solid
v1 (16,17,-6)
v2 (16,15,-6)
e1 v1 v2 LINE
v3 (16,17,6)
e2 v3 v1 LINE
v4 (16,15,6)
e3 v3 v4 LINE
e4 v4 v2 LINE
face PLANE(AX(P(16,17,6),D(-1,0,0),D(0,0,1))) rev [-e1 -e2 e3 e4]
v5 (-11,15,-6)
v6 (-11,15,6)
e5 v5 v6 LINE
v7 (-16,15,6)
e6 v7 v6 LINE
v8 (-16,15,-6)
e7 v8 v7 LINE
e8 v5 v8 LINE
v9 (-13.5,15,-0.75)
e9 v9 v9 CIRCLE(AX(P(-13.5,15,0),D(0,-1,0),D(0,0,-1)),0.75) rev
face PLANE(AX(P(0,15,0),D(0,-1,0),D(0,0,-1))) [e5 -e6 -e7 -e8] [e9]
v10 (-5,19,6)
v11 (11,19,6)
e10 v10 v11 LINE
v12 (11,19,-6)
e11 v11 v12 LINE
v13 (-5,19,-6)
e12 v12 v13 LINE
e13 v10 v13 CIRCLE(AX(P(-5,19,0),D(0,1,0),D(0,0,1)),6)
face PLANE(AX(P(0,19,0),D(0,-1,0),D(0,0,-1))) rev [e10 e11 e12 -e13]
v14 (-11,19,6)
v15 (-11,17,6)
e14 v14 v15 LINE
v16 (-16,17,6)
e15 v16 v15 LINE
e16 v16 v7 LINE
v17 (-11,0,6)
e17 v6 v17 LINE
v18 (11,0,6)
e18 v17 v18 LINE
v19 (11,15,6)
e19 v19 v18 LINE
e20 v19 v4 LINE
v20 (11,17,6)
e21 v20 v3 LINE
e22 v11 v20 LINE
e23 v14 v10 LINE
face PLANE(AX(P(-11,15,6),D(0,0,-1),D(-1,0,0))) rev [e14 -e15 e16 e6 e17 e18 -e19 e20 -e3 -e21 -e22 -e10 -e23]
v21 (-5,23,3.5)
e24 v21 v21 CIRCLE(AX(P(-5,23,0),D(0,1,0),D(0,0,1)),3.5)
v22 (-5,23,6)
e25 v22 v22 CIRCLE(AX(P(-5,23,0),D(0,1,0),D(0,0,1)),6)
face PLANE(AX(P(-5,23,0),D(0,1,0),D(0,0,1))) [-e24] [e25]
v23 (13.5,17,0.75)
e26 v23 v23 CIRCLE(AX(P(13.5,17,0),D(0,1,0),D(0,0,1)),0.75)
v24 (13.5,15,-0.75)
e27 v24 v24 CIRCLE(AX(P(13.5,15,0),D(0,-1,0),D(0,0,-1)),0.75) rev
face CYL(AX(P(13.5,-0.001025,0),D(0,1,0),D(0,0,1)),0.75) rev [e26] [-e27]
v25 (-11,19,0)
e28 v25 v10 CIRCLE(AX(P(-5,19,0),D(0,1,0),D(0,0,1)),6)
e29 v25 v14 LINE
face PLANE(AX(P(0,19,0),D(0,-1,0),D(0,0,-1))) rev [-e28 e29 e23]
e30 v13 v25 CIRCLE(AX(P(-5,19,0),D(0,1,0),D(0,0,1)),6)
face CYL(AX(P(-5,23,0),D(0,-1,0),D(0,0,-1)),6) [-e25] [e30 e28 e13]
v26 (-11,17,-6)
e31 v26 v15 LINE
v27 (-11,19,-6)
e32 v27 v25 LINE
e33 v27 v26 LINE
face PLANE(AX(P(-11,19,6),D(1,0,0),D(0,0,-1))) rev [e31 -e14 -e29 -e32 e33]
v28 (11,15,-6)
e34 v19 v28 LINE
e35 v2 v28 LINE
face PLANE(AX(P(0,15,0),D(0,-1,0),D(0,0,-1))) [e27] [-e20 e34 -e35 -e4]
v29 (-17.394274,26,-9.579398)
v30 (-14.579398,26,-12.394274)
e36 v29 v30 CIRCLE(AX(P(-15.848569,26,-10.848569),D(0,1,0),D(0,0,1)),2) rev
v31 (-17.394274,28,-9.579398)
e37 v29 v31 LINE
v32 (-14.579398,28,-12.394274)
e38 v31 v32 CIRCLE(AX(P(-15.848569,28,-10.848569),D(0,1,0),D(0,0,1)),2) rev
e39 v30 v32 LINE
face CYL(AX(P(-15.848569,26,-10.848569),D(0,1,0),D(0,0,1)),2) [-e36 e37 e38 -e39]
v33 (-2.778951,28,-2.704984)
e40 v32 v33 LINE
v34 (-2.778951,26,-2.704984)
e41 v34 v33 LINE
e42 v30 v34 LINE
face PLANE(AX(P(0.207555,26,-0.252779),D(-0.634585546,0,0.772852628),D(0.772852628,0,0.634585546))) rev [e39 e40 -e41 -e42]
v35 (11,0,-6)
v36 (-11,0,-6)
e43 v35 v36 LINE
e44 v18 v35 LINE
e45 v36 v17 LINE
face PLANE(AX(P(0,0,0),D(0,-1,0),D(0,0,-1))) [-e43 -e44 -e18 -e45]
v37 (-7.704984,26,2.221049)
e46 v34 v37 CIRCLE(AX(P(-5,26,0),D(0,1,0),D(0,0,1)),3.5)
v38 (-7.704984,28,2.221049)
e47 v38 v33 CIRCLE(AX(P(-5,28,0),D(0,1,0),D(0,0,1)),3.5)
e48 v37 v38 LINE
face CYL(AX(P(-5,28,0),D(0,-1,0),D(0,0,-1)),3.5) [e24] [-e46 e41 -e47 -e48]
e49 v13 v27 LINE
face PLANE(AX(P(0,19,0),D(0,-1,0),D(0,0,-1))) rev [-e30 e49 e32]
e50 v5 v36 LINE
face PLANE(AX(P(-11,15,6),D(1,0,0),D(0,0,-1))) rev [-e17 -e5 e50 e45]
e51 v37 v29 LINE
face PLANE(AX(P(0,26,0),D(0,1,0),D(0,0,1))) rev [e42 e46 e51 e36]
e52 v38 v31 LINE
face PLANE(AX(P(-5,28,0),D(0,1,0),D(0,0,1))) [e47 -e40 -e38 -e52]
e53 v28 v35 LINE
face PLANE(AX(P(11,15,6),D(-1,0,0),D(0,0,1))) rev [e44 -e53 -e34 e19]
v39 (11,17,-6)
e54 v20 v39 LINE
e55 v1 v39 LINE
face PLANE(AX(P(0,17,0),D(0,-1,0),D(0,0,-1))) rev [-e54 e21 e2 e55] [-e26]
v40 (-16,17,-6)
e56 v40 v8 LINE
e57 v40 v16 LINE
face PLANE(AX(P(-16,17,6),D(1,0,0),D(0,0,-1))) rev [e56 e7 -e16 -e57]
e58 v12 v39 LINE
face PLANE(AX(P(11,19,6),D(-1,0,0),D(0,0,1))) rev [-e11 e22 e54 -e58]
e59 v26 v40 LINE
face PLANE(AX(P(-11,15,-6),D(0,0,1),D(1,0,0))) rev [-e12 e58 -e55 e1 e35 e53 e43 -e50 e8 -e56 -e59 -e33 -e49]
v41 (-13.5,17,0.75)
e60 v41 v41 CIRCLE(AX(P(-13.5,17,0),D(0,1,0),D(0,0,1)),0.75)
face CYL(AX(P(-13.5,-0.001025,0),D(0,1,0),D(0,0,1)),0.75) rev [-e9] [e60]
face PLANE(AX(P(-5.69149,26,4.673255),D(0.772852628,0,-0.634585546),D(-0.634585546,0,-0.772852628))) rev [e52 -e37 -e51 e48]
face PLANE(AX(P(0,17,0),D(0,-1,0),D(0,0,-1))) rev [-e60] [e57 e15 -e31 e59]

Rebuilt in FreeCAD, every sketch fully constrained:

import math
import FreeCAD as App
import Part
import Sketcher
Q = App.Units.Quantity

doc = App.newDocument("Part")
body = doc.addObject("PartDesign::Body", "Body")

sketch1 = doc.addObject("Sketcher::SketchObject", "Sketch")
body.addObject(sketch1)
sketch1.AttachmentSupport = (doc.XZ_Plane, [""])
sketch1.MapMode = "FlatFace"
sketch1.addGeometry([
    Part.LineSegment(App.Vector(-11, -6, 0), App.Vector(-11, 6, 0)),
    Part.LineSegment(App.Vector(-11, 6, 0), App.Vector(11, 6, 0)),
    Part.LineSegment(App.Vector(11, 6, 0), App.Vector(11, -6, 0)),
    Part.LineSegment(App.Vector(11, -6, 0), App.Vector(-11, -6, 0)),
], False)
sketch1.addConstraint([
    Sketcher.Constraint("Coincident", 0, 2, 1, 1),
    Sketcher.Constraint("Coincident", 1, 2, 2, 1),
    Sketcher.Constraint("Coincident", 2, 2, 3, 1),
    Sketcher.Constraint("Coincident", 3, 2, 0, 1),
    Sketcher.Constraint("Vertical", 0),
    Sketcher.Constraint("Horizontal", 1),
    Sketcher.Constraint("Vertical", 2),
    Sketcher.Constraint("Horizontal", 3),
    Sketcher.Constraint("Symmetric", 0, 2, 2, 2, -1, 1),
    Sketcher.Constraint("DistanceX", 1, 1, 1, 2, Q("22 mm")),
    Sketcher.Constraint("DistanceY", 0, 1, 0, 2, Q("12 mm")),
])
pad1 = doc.addObject("PartDesign::Pad", "Pad")
body.addObject(pad1)
pad1.Profile = sketch1
pad1.Length = 15
pad1.Reversed = True

sketch2 = doc.addObject("Sketcher::SketchObject", "Sketch001")
body.addObject(sketch2)
sketch2.AttachmentSupport = (doc.XZ_Plane, [""])
sketch2.MapMode = "FlatFace"
sketch2.AttachmentOffset = App.Placement(App.Vector(0, 0, -15), App.Rotation())
sketch2.addGeometry([
    Part.LineSegment(App.Vector(-16, -6, 0), App.Vector(-16, 6, 0)),
    Part.LineSegment(App.Vector(-16, 6, 0), App.Vector(16, 6, 0)),
    Part.LineSegment(App.Vector(16, 6, 0), App.Vector(16, -6, 0)),
    Part.LineSegment(App.Vector(16, -6, 0), App.Vector(-16, -6, 0)),
], False)
sketch2.addConstraint([
    Sketcher.Constraint("Coincident", 0, 2, 1, 1),
    Sketcher.Constraint("Coincident", 1, 2, 2, 1),
    Sketcher.Constraint("Coincident", 2, 2, 3, 1),
    Sketcher.Constraint("Coincident", 3, 2, 0, 1),
    Sketcher.Constraint("Vertical", 0),
    Sketcher.Constraint("Horizontal", 1),
    Sketcher.Constraint("Vertical", 2),
    Sketcher.Constraint("Horizontal", 3),
    Sketcher.Constraint("Symmetric", 0, 2, 2, 2, -1, 1),
    Sketcher.Constraint("DistanceX", 1, 1, 1, 2, Q("32 mm")),
    Sketcher.Constraint("DistanceY", 0, 1, 0, 2, Q("12 mm")),
])
pad2 = doc.addObject("PartDesign::Pad", "Pad001")
body.addObject(pad2)
pad2.Profile = sketch2
pad2.Length = 2
pad2.Reversed = True

sketch3 = doc.addObject("Sketcher::SketchObject", "Sketch002")
body.addObject(sketch3)
sketch3.AttachmentSupport = (doc.XZ_Plane, [""])
sketch3.MapMode = "FlatFace"
sketch3.AttachmentOffset = App.Placement(App.Vector(0, 0, -17), App.Rotation())
sketch3.addGeometry([
    Part.LineSegment(App.Vector(-11, -6, 0), App.Vector(-11, 6, 0)),
    Part.LineSegment(App.Vector(-11, 6, 0), App.Vector(11, 6, 0)),
    Part.LineSegment(App.Vector(11, 6, 0), App.Vector(11, -6, 0)),
    Part.LineSegment(App.Vector(11, -6, 0), App.Vector(-11, -6, 0)),
], False)
sketch3.addConstraint([
    Sketcher.Constraint("Coincident", 0, 2, 1, 1),
    Sketcher.Constraint("Coincident", 1, 2, 2, 1),
    Sketcher.Constraint("Coincident", 2, 2, 3, 1),
    Sketcher.Constraint("Coincident", 3, 2, 0, 1),
    Sketcher.Constraint("Vertical", 0),
    Sketcher.Constraint("Horizontal", 1),
    Sketcher.Constraint("Vertical", 2),
    Sketcher.Constraint("Horizontal", 3),
    Sketcher.Constraint("Symmetric", 0, 2, 2, 2, -1, 1),
    Sketcher.Constraint("DistanceX", 1, 1, 1, 2, Q("22 mm")),
    Sketcher.Constraint("DistanceY", 0, 1, 0, 2, Q("12 mm")),
])
pad3 = doc.addObject("PartDesign::Pad", "Pad002")
body.addObject(pad3)
pad3.Profile = sketch3
pad3.Length = 2
pad3.Reversed = True

sketch4 = doc.addObject("Sketcher::SketchObject", "Sketch003")
body.addObject(sketch4)
sketch4.AttachmentSupport = (doc.XZ_Plane, [""])
sketch4.MapMode = "FlatFace"
sketch4.AttachmentOffset = App.Placement(App.Vector(0, 0, -19), App.Rotation())
sketch4.addGeometry(Part.Circle(App.Vector(-5, 0, 0), App.Vector(0, 0, 1), 6), False)
sketch4.addConstraint([
    Sketcher.Constraint("PointOnObject", 0, 3, -1),
    Sketcher.Constraint("Diameter", 0, Q("12 mm")),
    Sketcher.Constraint("DistanceX", 0, 3, -1, 1, Q("5 mm")),
])
pad4 = doc.addObject("PartDesign::Pad", "Pad003")
body.addObject(pad4)
pad4.Profile = sketch4
pad4.Length = 4
pad4.Reversed = True

sketch5 = doc.addObject("Sketcher::SketchObject", "Sketch004")
body.addObject(sketch5)
sketch5.AttachmentSupport = (doc.XZ_Plane, [""])
sketch5.MapMode = "FlatFace"
sketch5.AttachmentOffset = App.Placement(App.Vector(0, 0, -23), App.Rotation())
sketch5.addGeometry(Part.Circle(App.Vector(-5, 0, 0), App.Vector(0, 0, 1), 3.5), False)
sketch5.addConstraint([
    Sketcher.Constraint("PointOnObject", 0, 3, -1),
    Sketcher.Constraint("Diameter", 0, Q("7 mm")),
    Sketcher.Constraint("DistanceX", 0, 3, -1, 1, Q("5 mm")),
])
pad5 = doc.addObject("PartDesign::Pad", "Pad004")
body.addObject(pad5)
pad5.Profile = sketch5
pad5.Length = 5
pad5.Reversed = True

sketch6 = doc.addObject("Sketcher::SketchObject", "Sketch005")
body.addObject(sketch6)
sketch6.AttachmentSupport = (doc.XZ_Plane, [""])
sketch6.MapMode = "FlatFace"
sketch6.AttachmentOffset = App.Placement(App.Vector(0, 0, -26), App.Rotation())
sketch6.addGeometry([
    Part.LineSegment(App.Vector(-17.4, -9.6, 0), App.Vector(-7.7, 2.2, 0)),
    Part.ArcOfCircle(Part.Circle(App.Vector(-5, 0, 0), App.Vector(0, 0, 1), 3.5), math.radians(141), math.radians(309)),
    Part.LineSegment(App.Vector(-2.8, -2.7, 0), App.Vector(-14.6, -12.4, 0)),
    Part.ArcOfCircle(Part.Circle(App.Vector(-15.8, -10.8, 0), App.Vector(0, 0, 1), 2), math.radians(141), math.radians(309)),
], False)
sketch6.addConstraint([
    Sketcher.Constraint("Tangent", 0, 2, 1, 1),
    Sketcher.Constraint("Tangent", 1, 2, 2, 1),
    Sketcher.Constraint("Tangent", 2, 2, 3, 2),
    Sketcher.Constraint("Tangent", 3, 1, 0, 1),
    Sketcher.Constraint("PointOnObject", 1, 3, -1),
    Sketcher.Constraint("Radius", 3, Q("2 mm")),
    Sketcher.Constraint("Radius", 1, Q("3.5 mm")),
    Sketcher.Constraint("DistanceX", 1, 3, -1, 1, Q("5 mm")),
    Sketcher.Constraint("DistanceX", 2, 2, -1, 1, Q("14.579398 mm")),
    Sketcher.Constraint("DistanceY", 3, 1, -1, 1, Q("9.579398 mm")),
])
pad6 = doc.addObject("PartDesign::Pad", "Pad005")
body.addObject(pad6)
pad6.Profile = sketch6
pad6.Length = 2
pad6.Reversed = True

sketch7 = doc.addObject("Sketcher::SketchObject", "Sketch006")
body.addObject(sketch7)
sketch7.AttachmentSupport = (doc.XZ_Plane, [""])
sketch7.MapMode = "FlatFace"
sketch7.AttachmentOffset = App.Placement(App.Vector(0, 0, -17), App.Rotation())
sketch7.addGeometry(Part.Circle(App.Vector(13.5, 0, 0), App.Vector(0, 0, 1), 0.8), False)
sketch7.addConstraint([
    Sketcher.Constraint("PointOnObject", 0, 3, -1),
    Sketcher.Constraint("Diameter", 0, Q("1.5 mm")),
    Sketcher.Constraint("DistanceX", -1, 1, 0, 3, Q("13.5 mm")),
])
pocket1 = doc.addObject("PartDesign::Pocket", "Pocket")
body.addObject(pocket1)
pocket1.Profile = sketch7
pocket1.Type = "UpToFirst"
pocket1.Reversed = True

sketch8 = doc.addObject("Sketcher::SketchObject", "Sketch007")
body.addObject(sketch8)
sketch8.AttachmentSupport = (doc.XZ_Plane, [""])
sketch8.MapMode = "FlatFace"
sketch8.AttachmentOffset = App.Placement(App.Vector(0, 0, -17), App.Rotation())
sketch8.addGeometry(Part.Circle(App.Vector(-13.5, 0, 0), App.Vector(0, 0, 1), 0.8), False)
sketch8.addConstraint([
    Sketcher.Constraint("PointOnObject", 0, 3, -1),
    Sketcher.Constraint("Diameter", 0, Q("1.5 mm")),
    Sketcher.Constraint("DistanceX", 0, 3, -1, 1, Q("13.5 mm")),
])
pocket2 = doc.addObject("PartDesign::Pocket", "Pocket001")
body.addObject(pocket2)
pocket2.Profile = sketch8
pocket2.Type = "UpToFirst"
pocket2.Reversed = True

doc.recompute()
